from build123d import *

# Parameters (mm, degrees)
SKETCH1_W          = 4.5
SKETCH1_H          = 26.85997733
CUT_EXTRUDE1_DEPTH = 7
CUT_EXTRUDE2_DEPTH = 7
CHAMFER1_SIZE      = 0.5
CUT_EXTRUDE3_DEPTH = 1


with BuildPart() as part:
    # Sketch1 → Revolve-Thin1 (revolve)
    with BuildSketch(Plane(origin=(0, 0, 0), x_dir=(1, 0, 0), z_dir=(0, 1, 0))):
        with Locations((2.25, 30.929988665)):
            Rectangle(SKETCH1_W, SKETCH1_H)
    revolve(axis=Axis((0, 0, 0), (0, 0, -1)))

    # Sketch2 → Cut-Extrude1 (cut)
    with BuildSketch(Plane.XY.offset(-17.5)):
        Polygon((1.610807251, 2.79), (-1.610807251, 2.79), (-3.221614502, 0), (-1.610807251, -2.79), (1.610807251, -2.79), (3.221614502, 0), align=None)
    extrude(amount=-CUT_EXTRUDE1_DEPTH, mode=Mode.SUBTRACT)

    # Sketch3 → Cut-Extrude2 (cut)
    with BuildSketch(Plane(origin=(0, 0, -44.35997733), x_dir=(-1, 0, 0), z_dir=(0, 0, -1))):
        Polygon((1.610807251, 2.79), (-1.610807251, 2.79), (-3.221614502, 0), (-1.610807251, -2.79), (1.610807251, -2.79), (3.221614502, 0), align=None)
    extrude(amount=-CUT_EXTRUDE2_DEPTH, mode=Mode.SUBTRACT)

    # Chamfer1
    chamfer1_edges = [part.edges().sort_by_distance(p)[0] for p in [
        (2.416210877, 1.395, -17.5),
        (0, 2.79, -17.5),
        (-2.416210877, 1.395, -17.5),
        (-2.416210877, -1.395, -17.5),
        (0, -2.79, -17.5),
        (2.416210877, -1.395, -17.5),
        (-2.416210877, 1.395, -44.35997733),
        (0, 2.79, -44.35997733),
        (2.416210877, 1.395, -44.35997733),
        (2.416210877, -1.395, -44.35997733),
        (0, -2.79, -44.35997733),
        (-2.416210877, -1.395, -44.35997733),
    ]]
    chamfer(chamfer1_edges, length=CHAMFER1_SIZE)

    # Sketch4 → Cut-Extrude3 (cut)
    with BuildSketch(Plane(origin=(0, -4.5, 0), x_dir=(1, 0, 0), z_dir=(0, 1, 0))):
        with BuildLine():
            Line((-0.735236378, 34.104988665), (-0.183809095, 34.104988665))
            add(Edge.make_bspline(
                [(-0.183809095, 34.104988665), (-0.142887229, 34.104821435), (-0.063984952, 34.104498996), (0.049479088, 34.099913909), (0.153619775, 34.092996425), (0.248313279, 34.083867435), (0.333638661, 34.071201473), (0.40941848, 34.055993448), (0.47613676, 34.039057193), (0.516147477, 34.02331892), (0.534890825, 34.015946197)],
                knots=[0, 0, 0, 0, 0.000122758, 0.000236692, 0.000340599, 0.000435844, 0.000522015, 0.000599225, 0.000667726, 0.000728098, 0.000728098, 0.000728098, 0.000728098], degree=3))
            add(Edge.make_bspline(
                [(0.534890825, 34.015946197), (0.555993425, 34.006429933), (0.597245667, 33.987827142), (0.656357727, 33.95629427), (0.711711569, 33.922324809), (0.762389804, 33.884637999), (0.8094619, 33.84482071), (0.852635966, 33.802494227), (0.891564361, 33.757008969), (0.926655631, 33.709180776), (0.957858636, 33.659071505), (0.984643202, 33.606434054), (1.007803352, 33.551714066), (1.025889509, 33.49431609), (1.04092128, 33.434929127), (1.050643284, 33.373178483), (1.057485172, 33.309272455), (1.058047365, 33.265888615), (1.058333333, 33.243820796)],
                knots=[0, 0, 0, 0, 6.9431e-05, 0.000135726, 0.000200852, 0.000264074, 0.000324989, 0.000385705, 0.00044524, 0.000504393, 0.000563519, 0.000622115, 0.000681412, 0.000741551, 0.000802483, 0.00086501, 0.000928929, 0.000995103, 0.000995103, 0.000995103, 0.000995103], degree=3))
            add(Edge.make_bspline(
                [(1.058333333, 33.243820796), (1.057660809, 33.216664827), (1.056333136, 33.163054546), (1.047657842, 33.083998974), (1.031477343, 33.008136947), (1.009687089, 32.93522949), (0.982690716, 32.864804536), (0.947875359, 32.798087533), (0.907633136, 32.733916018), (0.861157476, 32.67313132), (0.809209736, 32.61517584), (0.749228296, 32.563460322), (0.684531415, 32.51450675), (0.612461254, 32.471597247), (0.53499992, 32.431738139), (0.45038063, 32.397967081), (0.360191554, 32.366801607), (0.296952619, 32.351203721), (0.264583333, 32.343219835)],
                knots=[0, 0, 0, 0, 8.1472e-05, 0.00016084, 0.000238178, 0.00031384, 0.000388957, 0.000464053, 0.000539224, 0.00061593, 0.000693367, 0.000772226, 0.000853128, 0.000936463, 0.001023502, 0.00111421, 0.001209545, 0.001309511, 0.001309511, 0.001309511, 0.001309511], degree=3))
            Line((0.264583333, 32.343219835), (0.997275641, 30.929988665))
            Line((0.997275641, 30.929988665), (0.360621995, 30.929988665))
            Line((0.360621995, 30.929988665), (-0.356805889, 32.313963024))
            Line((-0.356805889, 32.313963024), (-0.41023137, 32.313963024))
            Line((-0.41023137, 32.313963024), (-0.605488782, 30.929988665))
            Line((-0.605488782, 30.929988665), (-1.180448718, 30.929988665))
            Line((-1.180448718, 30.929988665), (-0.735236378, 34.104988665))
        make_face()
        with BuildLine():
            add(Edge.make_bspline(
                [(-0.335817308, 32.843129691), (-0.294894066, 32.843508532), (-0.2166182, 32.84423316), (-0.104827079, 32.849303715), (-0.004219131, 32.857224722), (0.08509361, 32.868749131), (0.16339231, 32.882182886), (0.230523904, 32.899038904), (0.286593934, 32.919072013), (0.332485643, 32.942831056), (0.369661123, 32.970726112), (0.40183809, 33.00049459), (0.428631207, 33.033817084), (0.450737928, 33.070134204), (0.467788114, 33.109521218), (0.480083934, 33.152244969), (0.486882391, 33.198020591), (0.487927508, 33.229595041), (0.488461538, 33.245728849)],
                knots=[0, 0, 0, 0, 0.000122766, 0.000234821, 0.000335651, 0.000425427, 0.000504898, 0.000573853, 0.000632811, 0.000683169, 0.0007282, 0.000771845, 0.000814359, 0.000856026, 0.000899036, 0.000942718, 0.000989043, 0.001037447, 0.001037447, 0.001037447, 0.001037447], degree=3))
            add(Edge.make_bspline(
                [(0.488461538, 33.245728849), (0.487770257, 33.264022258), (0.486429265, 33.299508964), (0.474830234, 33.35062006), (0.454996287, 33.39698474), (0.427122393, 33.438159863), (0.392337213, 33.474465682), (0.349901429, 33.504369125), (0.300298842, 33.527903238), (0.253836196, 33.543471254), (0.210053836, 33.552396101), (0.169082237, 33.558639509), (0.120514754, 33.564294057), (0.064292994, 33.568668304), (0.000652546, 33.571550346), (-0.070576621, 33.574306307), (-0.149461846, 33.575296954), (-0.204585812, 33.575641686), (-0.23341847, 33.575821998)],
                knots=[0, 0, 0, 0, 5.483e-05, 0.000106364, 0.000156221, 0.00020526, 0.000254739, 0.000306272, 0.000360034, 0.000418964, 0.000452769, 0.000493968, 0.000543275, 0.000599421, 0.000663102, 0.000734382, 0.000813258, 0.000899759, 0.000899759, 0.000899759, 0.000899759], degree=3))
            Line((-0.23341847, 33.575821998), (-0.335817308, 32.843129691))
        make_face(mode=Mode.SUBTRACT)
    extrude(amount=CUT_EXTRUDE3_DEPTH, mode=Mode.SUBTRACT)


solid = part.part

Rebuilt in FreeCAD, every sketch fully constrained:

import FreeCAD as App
import Part
import Sketcher

V = App.Vector
Q = App.Units.Quantity


def edges_at(feature, points):
    """Names of the edges that pass closest to the given points."""
    edges = feature.Shape.Edges
    near = lambda p: min(range(len(edges)), key=lambda i: edges[i].distToShape(Part.Vertex(*p))[0])
    return sorted({f"Edge{near(p) + 1}" for p in points})


def add_polygon(sketch, points):
    """Adds a closed chain of lines whose ends are joined by coincident constraints."""
    first, n = sketch.GeometryCount, len(points)
    for a, b in zip(points, points[1:] + points[:1]):
        sketch.addGeometry(Part.LineSegment(App.Vector(*a, 0), App.Vector(*b, 0)), False)
    for i in range(n):
        sketch.addConstraint(Sketcher.Constraint("Coincident", first + i, 2, first + (i + 1) % n, 1))

doc = App.newDocument("Part")
body = doc.addObject("PartDesign::Body", "Body")

# Sketch on XZ plane
sketch1 = body.newObject("Sketcher::SketchObject", "Sketch")
sketch1.AttachmentSupport = (doc.getObject("XZ_Plane"), [""])
sketch1.MapMode = "FlatFace"
add_polygon(sketch1, [(0, -44.4), (0, -17.5), (4.5, -17.5), (4.5, -44.4)])  # lines 0-3
sketch1.addConstraint(Sketcher.Constraint("Vertical", 0))
sketch1.addConstraint(Sketcher.Constraint("Horizontal", 1))
sketch1.addConstraint(Sketcher.Constraint("Vertical", 2))
sketch1.addConstraint(Sketcher.Constraint("Horizontal", 3))
sketch1.addConstraint(Sketcher.Constraint("PointOnObject", 0, 2, -2))
sketch1.addConstraint(Sketcher.Constraint("DistanceX", 1, 1, 1, 2, 4.5))
sketch1.addConstraint(Sketcher.Constraint("DistanceY", 0, 2, -1, 1, 17.5))
sketch1.addConstraint(Sketcher.Constraint("DistanceY", 0, 1, 0, 2, 26.859977))
revolution = body.newObject("PartDesign::Revolution", "Revolution")
revolution.Profile = sketch1
revolution.ReferenceAxis = (sketch1, ["V_Axis"])
revolution.Angle = 360

# Sketch on XY plane
sketch2 = body.newObject("Sketcher::SketchObject", "Sketch001")
sketch2.AttachmentSupport = (doc.getObject("XY_Plane"), [""])
sketch2.MapMode = "FlatFace"
sketch2.AttachmentOffset = App.Placement(V(0, 0, -17.5), App.Rotation())
add_polygon(sketch2, [(1.6, 2.8), (-1.6, 2.8), (-3.2, 0), (-1.6, -2.8), (1.6, -2.8), (3.2, 0)])  # lines 0-5
sketch2.addConstraint(Sketcher.Constraint("Horizontal", 0))
sketch2.addConstraint(Sketcher.Constraint("Horizontal", 3))
sketch2.addConstraint(Sketcher.Constraint("Symmetric", 0, 2, 3, 2, -1, 1))
sketch2.addConstraint(Sketcher.Constraint("Symmetric", 1, 2, 4, 2, -1, 1))
sketch2.addConstraint(Sketcher.Constraint("PointOnObject", 1, 2, -1))
sketch2.addConstraint(Sketcher.Constraint("Parallel", 2, 5))
sketch2.addConstraint(Sketcher.Constraint("Vertical", 0, 2, 2, 2))
sketch2.addConstraint(Sketcher.Constraint("Angle", 1, Q("-120 deg")))
sketch2.addConstraint(Sketcher.Constraint("DistanceY", -1, 1, 0, 2, 2.79))
sketch2.addConstraint(Sketcher.Constraint("DistanceX", 0, 2, 0, 1, 3.221615))
pocket1 = body.newObject("PartDesign::Pocket", "Pocket")
pocket1.Profile = sketch2
pocket1.Length = 7

# Sketch on XY plane
sketch3 = body.newObject("Sketcher::SketchObject", "Sketch002")
sketch3.AttachmentSupport = (doc.getObject("XY_Plane"), [""])
sketch3.MapMode = "FlatFace"
sketch3.AttachmentOffset = App.Placement(V(0, 0, -44.359977), App.Rotation())
add_polygon(sketch3, [(-1.6, 2.8), (1.6, 2.8), (3.2, 0), (1.6, -2.8), (-1.6, -2.8), (-3.2, 0)])  # lines 0-5
sketch3.addConstraint(Sketcher.Constraint("Horizontal", 0))
sketch3.addConstraint(Sketcher.Constraint("Horizontal", 3))
sketch3.addConstraint(Sketcher.Constraint("Symmetric", 0, 2, 3, 2, -1, 1))
sketch3.addConstraint(Sketcher.Constraint("Symmetric", 1, 2, 4, 2, -1, 1))
sketch3.addConstraint(Sketcher.Constraint("PointOnObject", 1, 2, -1))
sketch3.addConstraint(Sketcher.Constraint("Parallel", 2, 5))
sketch3.addConstraint(Sketcher.Constraint("Vertical", 0, 2, 2, 2))
sketch3.addConstraint(Sketcher.Constraint("Angle", 1, Q("-60 deg")))
sketch3.addConstraint(Sketcher.Constraint("DistanceY", -1, 1, 0, 2, 2.79))
sketch3.addConstraint(Sketcher.Constraint("DistanceX", 0, 1, 0, 2, 3.221615))
pocket2 = body.newObject("PartDesign::Pocket", "Pocket001")
pocket2.Profile = sketch3
pocket2.Length = 7
pocket2.Reversed = True
doc.recompute()

chamfer = body.newObject("PartDesign::Chamfer", "Chamfer")
chamfer.Base = (pocket2, edges_at(pocket2, [
    (2.416, 1.395, -17.5),
    (0, 2.79, -17.5),
    (-2.416, 1.395, -17.5),
    (-2.416, -1.395, -17.5),
    (0, -2.79, -17.5),
    (2.416, -1.395, -17.5),
    (-2.416, 1.395, -44.36),
    (0, 2.79, -44.36),
    (2.416, 1.395, -44.36),
    (2.416, -1.395, -44.36),
    (0, -2.79, -44.36),
    (-2.416, -1.395, -44.36),
]))
chamfer.Size = 0.5

# Sketch on XZ plane
sketch4 = body.newObject("Sketcher::SketchObject", "Sketch003")
sketch4.AttachmentSupport = (doc.getObject("XZ_Plane"), [""])
sketch4.MapMode = "FlatFace"
sketch4.AttachmentOffset = App.Placement(V(0, 0, 4.5), App.Rotation())
sketch4.addGeometry(Part.LineSegment(V(-0.183809, -34.104989, 0), V(-0.735236, -34.104989, 0)), False)
sketch4.addGeometry(Part.LineSegment(V(-0.735236, -34.104989, 0), V(-1.180449, -30.929989, 0)), False)
sketch4.addGeometry(Part.LineSegment(V(-1.180449, -30.929989, 0), V(-0.605489, -30.929989, 0)), False)
sketch4.addGeometry(Part.LineSegment(V(-0.605489, -30.929989, 0), V(-0.410231, -32.313963, 0)), False)
sketch4.addGeometry(Part.LineSegment(V(-0.410231, -32.313963, 0), V(-0.356806, -32.313963, 0)), False)
sketch4.addGeometry(Part.LineSegment(V(-0.356806, -32.313963, 0), V(0.360622, -30.929989, 0)), False)
sketch4.addGeometry(Part.LineSegment(V(0.360622, -30.929989, 0), V(0.997276, -30.929989, 0)), False)
sketch4.addGeometry(Part.LineSegment(V(0.997276, -30.929989, 0), V(0.264583, -32.34322, 0)), False)
sketch4.addGeometry(Part.BSplineCurve([V(1.058333, -33.243821, 0), V(1.057661, -33.216665, 0), V(1.056333, -33.163055, 0), V(1.047658, -33.083999, 0), V(1.031477, -33.008137, 0), V(1.009687, -32.935229, 0), V(0.982691, -32.864805, 0), V(0.947875, -32.798088, 0), V(0.907633, -32.733916, 0), V(0.861157, -32.673131, 0), V(0.80921, -32.615176, 0), V(0.749228, -32.56346, 0), V(0.684531, -32.514507, 0), V(0.612461, -32.471597, 0), V(0.535, -32.431738, 0), V(0.450381, -32.397967, 0), V(0.360192, -32.366802, 0), V(0.296953, -32.351204, 0), V(0.264583, -32.34322, 0)], [4, 1, 1, 1, 1, 1, 1, 1, 1, 1, 1, 1, 1, 1, 1, 1, 4], [0, 0.000081472, 0.00016084, 0.000238178, 0.00031384, 0.000388957, 0.000464053, 0.000539224, 0.00061593, 0.000693367, 0.000772226, 0.000853128, 0.000936463, 0.001023502, 0.00111421, 0.001209545, 0.001309511], False, 3, [1, 1, 1, 1, 1, 1, 1, 1, 1, 1, 1, 1, 1, 1, 1, 1, 1, 1, 1], False), False)
sketch4.addGeometry(Part.BSplineCurve([V(0.534891, -34.015946, 0), V(0.555993, -34.00643, 0), V(0.597246, -33.987827, 0), V(0.656358, -33.956294, 0), V(0.711712, -33.922325, 0), V(0.76239, -33.884638, 0), V(0.809462, -33.844821, 0), V(0.852636, -33.802494, 0), V(0.891564, -33.757009, 0), V(0.926656, -33.709181, 0), V(0.957859, -33.659072, 0), V(0.984643, -33.606434, 0), V(1.007803, -33.551714, 0), V(1.02589, -33.494316, 0), V(1.040921, -33.434929, 0), V(1.050643, -33.373178, 0), V(1.057485, -33.309272, 0), V(1.058047, -33.265889, 0), V(1.058333, -33.243821, 0)], [4, 1, 1, 1, 1, 1, 1, 1, 1, 1, 1, 1, 1, 1, 1, 1, 4], [0, 0.000069431, 0.000135726, 0.000200852, 0.000264074, 0.000324989, 0.000385705, 0.00044524, 0.000504393, 0.000563519, 0.000622115, 0.000681412, 0.000741551, 0.000802483, 0.00086501, 0.000928929, 0.000995103], False, 3, [1, 1, 1, 1, 1, 1, 1, 1, 1, 1, 1, 1, 1, 1, 1, 1, 1, 1, 1], False), False)
sketch4.addGeometry(Part.BSplineCurve([V(-0.183809, -34.104989, 0), V(-0.142887, -34.104821, 0), V(-0.063985, -34.104499, 0), V(0.049479, -34.099914, 0), V(0.15362, -34.092996, 0), V(0.248313, -34.083867, 0), V(0.333639, -34.071201, 0), V(0.409418, -34.055993, 0), V(0.476137, -34.039057, 0), V(0.516147, -34.023319, 0), V(0.534891, -34.015946, 0)], [4, 1, 1, 1, 1, 1, 1, 1, 4], [0, 0.000122758, 0.000236692, 0.000340599, 0.000435844, 0.000522015, 0.000599225, 0.000667726, 0.000728098], False, 3, [1, 1, 1, 1, 1, 1, 1, 1, 1, 1, 1], False), False)
sketch4.addGeometry(Part.LineSegment(V(-0.335817, -32.84313, 0), V(-0.233418, -33.575822, 0)), False)
sketch4.addGeometry(Part.BSplineCurve([V(0.488462, -33.245729, 0), V(0.48777, -33.264022, 0), V(0.486429, -33.299509, 0), V(0.47483, -33.35062, 0), V(0.454996, -33.396985, 0), V(0.427122, -33.43816, 0), V(0.392337, -33.474466, 0), V(0.349901, -33.504369, 0), V(0.300299, -33.527903, 0), V(0.253836, -33.543471, 0), V(0.210054, -33.552396, 0), V(0.169082, -33.55864, 0), V(0.120515, -33.564294, 0), V(0.064293, -33.568668, 0), V(0.000653, -33.57155, 0), V(-0.070577, -33.574306, 0), V(-0.149462, -33.575297, 0), V(-0.204586, -33.575642, 0), V(-0.233418, -33.575822, 0)], [4, 1, 1, 1, 1, 1, 1, 1, 1, 1, 1, 1, 1, 1, 1, 1, 4], [0, 0.00005483, 0.000106364, 0.000156221, 0.00020526, 0.000254739, 0.000306272, 0.000360034, 0.000418964, 0.000452769, 0.000493968, 0.000543275, 0.000599421, 0.000663102, 0.000734382, 0.000813258, 0.000899759], False, 3, [1, 1, 1, 1, 1, 1, 1, 1, 1, 1, 1, 1, 1, 1, 1, 1, 1, 1, 1], False), False)
sketch4.addGeometry(Part.BSplineCurve([V(-0.335817, -32.84313, 0), V(-0.294894, -32.843509, 0), V(-0.216618, -32.844233, 0), V(-0.104827, -32.849304, 0), V(-0.004219, -32.857225, 0), V(0.085094, -32.868749, 0), V(0.163392, -32.882183, 0), V(0.230524, -32.899039, 0), V(0.286594, -32.919072, 0), V(0.332486, -32.942831, 0), V(0.369661, -32.970726, 0), V(0.401838, -33.000495, 0), V(0.428631, -33.033817, 0), V(0.450738, -33.070134, 0), V(0.467788, -33.109521, 0), V(0.480084, -33.152245, 0), V(0.486882, -33.198021, 0), V(0.487928, -33.229595, 0), V(0.488462, -33.245729, 0)], [4, 1, 1, 1, 1, 1, 1, 1, 1, 1, 1, 1, 1, 1, 1, 1, 4], [0, 0.000122766, 0.000234821, 0.000335651, 0.000425427, 0.000504898, 0.000573853, 0.000632811, 0.000683169, 0.0007282, 0.000771845, 0.000814359, 0.000856026, 0.000899036, 0.000942718, 0.000989043, 0.001037447], False, 3, [1, 1, 1, 1, 1, 1, 1, 1, 1, 1, 1, 1, 1, 1, 1, 1, 1, 1, 1], False), False)
sketch4.addConstraint(Sketcher.Constraint("Block", 8))
sketch4.addConstraint(Sketcher.Constraint("Block", 9))
sketch4.addConstraint(Sketcher.Constraint("Block", 10))
sketch4.addConstraint(Sketcher.Constraint("Block", 12))
sketch4.addConstraint(Sketcher.Constraint("Block", 13))
sketch4.addConstraint(Sketcher.Constraint("Coincident", 0, 2, 1, 1))
sketch4.addConstraint(Sketcher.Constraint("Coincident", 1, 2, 2, 1))
sketch4.addConstraint(Sketcher.Constraint("Coincident", 2, 2, 3, 1))
sketch4.addConstraint(Sketcher.Constraint("Coincident", 3, 2, 4, 1))
sketch4.addConstraint(Sketcher.Constraint("Coincident", 4, 2, 5, 1))
sketch4.addConstraint(Sketcher.Constraint("Coincident", 5, 2, 6, 1))
sketch4.addConstraint(Sketcher.Constraint("Coincident", 6, 2, 7, 1))
sketch4.addConstraint(Sketcher.Constraint("Coincident", 7, 2, 8, 2))
sketch4.addConstraint(Sketcher.Constraint("Coincident", 10, 1, 0, 1))
sketch4.addConstraint(Sketcher.Constraint("Coincident", 11, 2, 12, 2))
sketch4.addConstraint(Sketcher.Constraint("Coincident", 13, 1, 11, 1))
sketch4.addConstraint(Sketcher.Constraint("Horizontal", 0))
sketch4.addConstraint(Sketcher.Constraint("Horizontal", 2))
sketch4.addConstraint(Sketcher.Constraint("Horizontal", 4))
sketch4.addConstraint(Sketcher.Constraint("Horizontal", 6))
sketch4.addConstraint(Sketcher.Constraint("Horizontal", 2, 2, 5, 2))
sketch4.addConstraint(Sketcher.Constraint("DistanceY", 0, 2, 1, 2, 3.175))
sketch4.addConstraint(Sketcher.Constraint("DistanceX", 2, 1, 2, 2, 0.57496))
sketch4.addConstraint(Sketcher.Constraint("Distance", 3, 1.39768))
sketch4.addConstraint(Sketcher.Constraint("DistanceX", 0, 2, 0, 1, 0.551427))
sketch4.addConstraint(Sketcher.Constraint("DistanceX", 4, 1, 4, 2, 0.053425))
sketch4.addConstraint(Sketcher.Constraint("DistanceX", 6, 1, 6, 2, 0.636654))
sketch4.addConstraint(Sketcher.Constraint("DistanceX", 1, 2, -1, 1, 1.180449))
sketch4.addConstraint(Sketcher.Constraint("DistanceX", 3, 2, -1, 1, 0.410231))
sketch4.addConstraint(Sketcher.Constraint("DistanceX", -1, 1, 5, 2, 0.360622))
pocket3 = body.newObject("PartDesign::Pocket", "Pocket002")
pocket3.Profile = sketch4
pocket3.Length = 1

doc.recompute()
